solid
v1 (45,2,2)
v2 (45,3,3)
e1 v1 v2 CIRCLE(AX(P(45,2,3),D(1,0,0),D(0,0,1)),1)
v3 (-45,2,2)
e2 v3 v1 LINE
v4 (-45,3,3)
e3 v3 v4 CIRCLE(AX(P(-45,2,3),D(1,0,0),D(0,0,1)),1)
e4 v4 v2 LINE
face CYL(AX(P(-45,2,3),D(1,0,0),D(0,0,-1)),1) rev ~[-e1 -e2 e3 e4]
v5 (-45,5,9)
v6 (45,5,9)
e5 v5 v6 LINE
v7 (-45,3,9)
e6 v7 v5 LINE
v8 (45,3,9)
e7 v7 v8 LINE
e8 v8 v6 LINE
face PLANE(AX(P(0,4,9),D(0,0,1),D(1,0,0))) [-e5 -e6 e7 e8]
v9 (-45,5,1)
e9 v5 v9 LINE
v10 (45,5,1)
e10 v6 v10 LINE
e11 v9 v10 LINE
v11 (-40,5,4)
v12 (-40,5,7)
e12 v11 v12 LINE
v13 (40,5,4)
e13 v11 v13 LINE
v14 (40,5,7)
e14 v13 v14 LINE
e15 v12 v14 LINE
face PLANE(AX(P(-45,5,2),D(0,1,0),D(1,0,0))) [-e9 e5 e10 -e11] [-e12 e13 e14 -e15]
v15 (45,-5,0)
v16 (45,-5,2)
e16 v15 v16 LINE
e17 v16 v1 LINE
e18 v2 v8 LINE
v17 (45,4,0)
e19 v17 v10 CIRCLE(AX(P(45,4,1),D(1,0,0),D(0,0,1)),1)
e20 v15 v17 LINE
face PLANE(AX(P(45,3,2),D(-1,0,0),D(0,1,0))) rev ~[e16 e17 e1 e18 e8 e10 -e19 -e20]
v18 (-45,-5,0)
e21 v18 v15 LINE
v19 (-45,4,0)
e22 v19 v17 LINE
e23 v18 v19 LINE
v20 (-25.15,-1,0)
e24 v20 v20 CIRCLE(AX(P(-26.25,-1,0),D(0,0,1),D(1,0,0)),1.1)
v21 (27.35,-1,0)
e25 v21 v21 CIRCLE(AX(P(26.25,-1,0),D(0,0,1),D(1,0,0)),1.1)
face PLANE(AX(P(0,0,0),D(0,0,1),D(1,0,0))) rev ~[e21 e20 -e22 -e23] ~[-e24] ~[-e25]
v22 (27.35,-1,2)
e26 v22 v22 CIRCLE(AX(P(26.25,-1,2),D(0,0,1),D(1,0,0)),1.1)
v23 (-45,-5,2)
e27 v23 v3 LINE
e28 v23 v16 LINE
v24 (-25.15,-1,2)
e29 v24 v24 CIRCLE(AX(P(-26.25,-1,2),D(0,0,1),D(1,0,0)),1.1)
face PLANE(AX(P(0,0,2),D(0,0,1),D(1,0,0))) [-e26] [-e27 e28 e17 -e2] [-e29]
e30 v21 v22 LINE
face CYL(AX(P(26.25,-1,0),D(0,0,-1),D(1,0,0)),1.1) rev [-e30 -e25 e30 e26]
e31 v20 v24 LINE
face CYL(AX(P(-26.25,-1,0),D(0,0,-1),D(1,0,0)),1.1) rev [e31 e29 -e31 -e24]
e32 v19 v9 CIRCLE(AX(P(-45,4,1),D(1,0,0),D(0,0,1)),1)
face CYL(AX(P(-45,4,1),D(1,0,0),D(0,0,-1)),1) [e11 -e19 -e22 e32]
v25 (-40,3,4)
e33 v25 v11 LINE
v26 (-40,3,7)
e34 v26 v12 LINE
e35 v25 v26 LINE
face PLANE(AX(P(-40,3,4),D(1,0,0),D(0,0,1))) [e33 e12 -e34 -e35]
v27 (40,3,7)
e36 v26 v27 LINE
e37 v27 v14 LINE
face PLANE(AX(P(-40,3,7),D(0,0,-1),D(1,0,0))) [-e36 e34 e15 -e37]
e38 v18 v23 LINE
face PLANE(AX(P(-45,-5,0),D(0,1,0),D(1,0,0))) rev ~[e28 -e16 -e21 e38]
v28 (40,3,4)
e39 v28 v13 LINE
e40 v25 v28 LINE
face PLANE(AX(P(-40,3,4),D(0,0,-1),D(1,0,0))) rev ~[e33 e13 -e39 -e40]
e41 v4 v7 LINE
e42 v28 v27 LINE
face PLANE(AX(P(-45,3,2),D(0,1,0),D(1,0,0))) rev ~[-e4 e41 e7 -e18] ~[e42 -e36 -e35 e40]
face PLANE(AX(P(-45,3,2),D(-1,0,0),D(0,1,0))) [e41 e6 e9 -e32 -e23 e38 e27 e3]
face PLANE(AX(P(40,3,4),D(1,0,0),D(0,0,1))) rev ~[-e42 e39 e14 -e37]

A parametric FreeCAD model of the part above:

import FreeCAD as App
import Part
import Sketcher
Q = App.Units.Quantity


def edges_at(feature, points):
    """Names of the edges that pass closest to the given points."""
    edges = feature.Shape.Edges
    near = lambda p: min(range(len(edges)), key=lambda i: edges[i].distToShape(Part.Vertex(*p))[0])
    return sorted({f"Edge{near(p) + 1}" for p in points})

doc = App.newDocument("Part")
body = doc.addObject("PartDesign::Body", "Body")

# Sketch on XY plane
sketch1 = body.newObject("Sketcher::SketchObject", "Sketch")
sketch1.AttachmentSupport = (doc.getObject("XY_Plane"), [""])
sketch1.MapMode = "FlatFace"
sketch1.addGeometry(Part.LineSegment(App.Vector(-45, 5, 0), App.Vector(-45, -5, 0)), False)
sketch1.addGeometry(Part.LineSegment(App.Vector(-45, -5, 0), App.Vector(45, -5, 0)), False)
sketch1.addGeometry(Part.LineSegment(App.Vector(45, -5, 0), App.Vector(45, 5, 0)), False)
sketch1.addGeometry(Part.LineSegment(App.Vector(45, 5, 0), App.Vector(-45, 5, 0)), False)
sketch1.addGeometry(Part.Circle(App.Vector(-26.2, -1, 0), App.Vector(0, 0, 1), 1.1), False)
sketch1.addGeometry(Part.Circle(App.Vector(26.2, -1, 0), App.Vector(0, 0, 1), 1.1), False)
sketch1.addConstraint(Sketcher.Constraint("Coincident", 0, 2, 1, 1))
sketch1.addConstraint(Sketcher.Constraint("Coincident", 1, 2, 2, 1))
sketch1.addConstraint(Sketcher.Constraint("Coincident", 2, 2, 3, 1))
sketch1.addConstraint(Sketcher.Constraint("Coincident", 3, 2, 0, 1))
sketch1.addConstraint(Sketcher.Constraint("Vertical", 0))
sketch1.addConstraint(Sketcher.Constraint("Horizontal", 1))
sketch1.addConstraint(Sketcher.Constraint("Vertical", 2))
sketch1.addConstraint(Sketcher.Constraint("Horizontal", 3))
sketch1.addConstraint(Sketcher.Constraint("Equal", 4, 5))
sketch1.addConstraint(Sketcher.Constraint("Symmetric", 0, 2, 2, 2, -1, 1))
sketch1.addConstraint(Sketcher.Constraint("Symmetric", 4, 3, 5, 3, -2))
sketch1.addConstraint(Sketcher.Constraint("Diameter", 4, Q("2.2 mm")))
sketch1.addConstraint(Sketcher.Constraint("DistanceX", 1, 1, 1, 2, Q("90 mm")))
sketch1.addConstraint(Sketcher.Constraint("DistanceY", 0, 2, 0, 1, Q("10 mm")))
sketch1.addConstraint(Sketcher.Constraint("DistanceY", 4, 3, -1, 1, Q("1 mm")))
sketch1.addConstraint(Sketcher.Constraint("DistanceX", 4, 3, 5, 3, Q("52.5 mm")))
pad1 = body.newObject("PartDesign::Pad", "Pad")
pad1.Profile = sketch1
pad1.Length = 2

# Sketch on XY plane
sketch2 = body.newObject("Sketcher::SketchObject", "Sketch001")
sketch2.AttachmentSupport = (doc.getObject("XY_Plane"), [""])
sketch2.MapMode = "FlatFace"
sketch2.AttachmentOffset = App.Placement(App.Vector(0, 0, 2), App.Rotation())
sketch2.addGeometry(Part.LineSegment(App.Vector(-45, 5, 0), App.Vector(-45, 3, 0)), False)
sketch2.addGeometry(Part.LineSegment(App.Vector(-45, 3, 0), App.Vector(45, 3, 0)), False)
sketch2.addGeometry(Part.LineSegment(App.Vector(45, 3, 0), App.Vector(45, 5, 0)), False)
sketch2.addGeometry(Part.LineSegment(App.Vector(45, 5, 0), App.Vector(-45, 5, 0)), False)
sketch2.addConstraint(Sketcher.Constraint("Coincident", 0, 2, 1, 1))
sketch2.addConstraint(Sketcher.Constraint("Coincident", 1, 2, 2, 1))
sketch2.addConstraint(Sketcher.Constraint("Coincident", 2, 2, 3, 1))
sketch2.addConstraint(Sketcher.Constraint("Coincident", 3, 2, 0, 1))
sketch2.addConstraint(Sketcher.Constraint("Vertical", 0))
sketch2.addConstraint(Sketcher.Constraint("Horizontal", 1))
sketch2.addConstraint(Sketcher.Constraint("Vertical", 2))
sketch2.addConstraint(Sketcher.Constraint("Horizontal", 3))
sketch2.addConstraint(Sketcher.Constraint("DistanceX", 1, 1, 1, 2, Q("90 mm")))
sketch2.addConstraint(Sketcher.Constraint("DistanceY", 0, 2, 0, 1, Q("2 mm")))
sketch2.addConstraint(Sketcher.Constraint("DistanceX", 0, 2, -1, 1, Q("45 mm")))
sketch2.addConstraint(Sketcher.Constraint("DistanceY", -1, 1, 0, 2, Q("3 mm")))
pad2 = body.newObject("PartDesign::Pad", "Pad001")
pad2.Profile = sketch2
pad2.Length = 7
doc.recompute()

fillet = body.newObject("PartDesign::Fillet", "Fillet")
fillet.Base = (pad2, edges_at(pad2, [(0, 5, 0), (0, 3, 2)]))
fillet.Radius = 1

# Sketch on XZ plane
sketch3 = body.newObject("Sketcher::SketchObject", "Sketch002")
sketch3.AttachmentSupport = (doc.getObject("XZ_Plane"), [""])
sketch3.MapMode = "FlatFace"
sketch3.AttachmentOffset = App.Placement(App.Vector(0, 0, -3), App.Rotation())
sketch3.addGeometry(Part.LineSegment(App.Vector(-40, 7, 0), App.Vector(-40, 4, 0)), False)
sketch3.addGeometry(Part.LineSegment(App.Vector(-40, 4, 0), App.Vector(40, 4, 0)), False)
sketch3.addGeometry(Part.LineSegment(App.Vector(40, 4, 0), App.Vector(40, 7, 0)), False)
sketch3.addGeometry(Part.LineSegment(App.Vector(40, 7, 0), App.Vector(-40, 7, 0)), False)
sketch3.addConstraint(Sketcher.Constraint("Coincident", 0, 2, 1, 1))
sketch3.addConstraint(Sketcher.Constraint("Coincident", 1, 2, 2, 1))
sketch3.addConstraint(Sketcher.Constraint("Coincident", 2, 2, 3, 1))
sketch3.addConstraint(Sketcher.Constraint("Coincident", 3, 2, 0, 1))
sketch3.addConstraint(Sketcher.Constraint("Vertical", 0))
sketch3.addConstraint(Sketcher.Constraint("Horizontal", 1))
sketch3.addConstraint(Sketcher.Constraint("Vertical", 2))
sketch3.addConstraint(Sketcher.Constraint("Horizontal", 3))
sketch3.addConstraint(Sketcher.Constraint("DistanceX", 1, 1, 1, 2, Q("80 mm")))
sketch3.addConstraint(Sketcher.Constraint("DistanceY", 0, 2, 0, 1, Q("3 mm")))
sketch3.addConstraint(Sketcher.Constraint("DistanceX", 0, 2, -1, 1, Q("40 mm")))
sketch3.addConstraint(Sketcher.Constraint("DistanceY", -1, 1, 0, 2, Q("4 mm")))
pocket1 = body.newObject("PartDesign::Pocket", "Pocket")
pocket1.Profile = sketch3
pocket1.Length = 2

doc.recompute()
